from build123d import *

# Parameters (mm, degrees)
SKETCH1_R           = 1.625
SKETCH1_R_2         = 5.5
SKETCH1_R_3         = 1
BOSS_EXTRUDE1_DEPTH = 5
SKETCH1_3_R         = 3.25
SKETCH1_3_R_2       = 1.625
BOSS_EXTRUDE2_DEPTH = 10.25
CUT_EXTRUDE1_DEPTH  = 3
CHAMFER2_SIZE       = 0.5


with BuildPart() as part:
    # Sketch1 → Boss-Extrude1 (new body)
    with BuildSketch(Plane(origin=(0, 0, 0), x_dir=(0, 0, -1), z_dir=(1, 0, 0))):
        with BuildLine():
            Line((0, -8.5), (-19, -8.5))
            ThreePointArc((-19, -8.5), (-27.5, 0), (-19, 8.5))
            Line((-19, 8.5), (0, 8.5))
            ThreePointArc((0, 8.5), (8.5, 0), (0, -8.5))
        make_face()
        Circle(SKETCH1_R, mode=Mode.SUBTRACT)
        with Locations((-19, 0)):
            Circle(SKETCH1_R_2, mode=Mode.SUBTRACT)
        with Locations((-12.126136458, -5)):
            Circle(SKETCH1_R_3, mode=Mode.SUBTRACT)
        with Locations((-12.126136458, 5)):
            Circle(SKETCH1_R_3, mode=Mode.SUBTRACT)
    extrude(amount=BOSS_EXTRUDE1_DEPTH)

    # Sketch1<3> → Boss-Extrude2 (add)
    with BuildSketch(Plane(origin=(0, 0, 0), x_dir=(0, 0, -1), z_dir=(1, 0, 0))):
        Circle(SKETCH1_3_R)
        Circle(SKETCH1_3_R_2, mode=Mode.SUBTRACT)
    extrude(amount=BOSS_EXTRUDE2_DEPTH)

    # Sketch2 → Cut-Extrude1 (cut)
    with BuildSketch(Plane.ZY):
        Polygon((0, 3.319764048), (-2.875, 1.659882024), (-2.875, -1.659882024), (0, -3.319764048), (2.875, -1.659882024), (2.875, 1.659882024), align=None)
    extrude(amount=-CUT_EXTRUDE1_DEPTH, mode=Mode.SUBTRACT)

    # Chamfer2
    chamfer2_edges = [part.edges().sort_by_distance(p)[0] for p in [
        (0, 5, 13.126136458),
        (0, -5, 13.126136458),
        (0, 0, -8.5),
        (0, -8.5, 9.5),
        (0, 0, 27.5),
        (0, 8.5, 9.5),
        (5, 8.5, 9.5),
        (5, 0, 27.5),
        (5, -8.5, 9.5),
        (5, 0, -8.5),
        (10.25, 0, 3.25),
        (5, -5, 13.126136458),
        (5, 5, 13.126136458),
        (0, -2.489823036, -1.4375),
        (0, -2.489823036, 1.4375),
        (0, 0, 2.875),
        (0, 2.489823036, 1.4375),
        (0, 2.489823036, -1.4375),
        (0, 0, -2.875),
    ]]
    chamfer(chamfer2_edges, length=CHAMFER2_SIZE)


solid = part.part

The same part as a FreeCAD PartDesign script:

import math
import FreeCAD as App
import Part
import Sketcher
Q = App.Units.Quantity


def edges_at(feature, points):
    """Names of the edges that pass closest to the given points."""
    edges = feature.Shape.Edges
    near = lambda p: min(range(len(edges)), key=lambda i: edges[i].distToShape(Part.Vertex(*p))[0])
    return sorted({f"Edge{near(p) + 1}" for p in points})

doc = App.newDocument("Part")
body = doc.addObject("PartDesign::Body", "Body")

# Sketch on YZ plane
sketch1 = body.newObject("Sketcher::SketchObject", "Sketch")
sketch1.AttachmentSupport = (doc.getObject("YZ_Plane"), [""])
sketch1.MapMode = "FlatFace"
sketch1.addGeometry(Part.LineSegment(App.Vector(-8.5, 19, 0), App.Vector(-8.5, 0, 0)), False)
sketch1.addGeometry(Part.ArcOfCircle(Part.Circle(App.Vector(0, 0, 0), App.Vector(0, 0, 1), 8.5), math.radians(180), math.radians(360)), False)
sketch1.addGeometry(Part.LineSegment(App.Vector(8.5, 0, 0), App.Vector(8.5, 19, 0)), False)
sketch1.addGeometry(Part.ArcOfCircle(Part.Circle(App.Vector(0, 19, 0), App.Vector(0, 0, 1), 8.5), math.radians(0), math.radians(180)), False)
sketch1.addGeometry(Part.Circle(App.Vector(-5, 12.1, 0), App.Vector(0, 0, 1), 1), False)
sketch1.addGeometry(Part.Circle(App.Vector(0, 0, 0), App.Vector(0, 0, 1), 1.6), False)
sketch1.addGeometry(Part.Circle(App.Vector(0, 19, 0), App.Vector(0, 0, 1), 5.5), False)
sketch1.addGeometry(Part.Circle(App.Vector(5, 12.1, 0), App.Vector(0, 0, 1), 1), False)
sketch1.addConstraint(Sketcher.Constraint("Tangent", 0, 2, 1, 1))
sketch1.addConstraint(Sketcher.Constraint("Tangent", 1, 2, 2, 1))
sketch1.addConstraint(Sketcher.Constraint("Tangent", 2, 2, 3, 1))
sketch1.addConstraint(Sketcher.Constraint("Tangent", 3, 2, 0, 1))
sketch1.addConstraint(Sketcher.Constraint("Vertical", 0))
sketch1.addConstraint(Sketcher.Constraint("Vertical", 2))
sketch1.addConstraint(Sketcher.Constraint("Coincident", 1, 3, -1, 1))
sketch1.addConstraint(Sketcher.Constraint("Coincident", 5, 3, -1, 1))
sketch1.addConstraint(Sketcher.Constraint("Coincident", 6, 3, 3, 3))
sketch1.addConstraint(Sketcher.Constraint("Equal", 4, 7))
sketch1.addConstraint(Sketcher.Constraint("Symmetric", 4, 3, 7, 3, -2))
sketch1.addConstraint(Sketcher.Constraint("Diameter", 4, 2.0))
sketch1.addConstraint(Sketcher.Constraint("Diameter", 6, 11.0))
sketch1.addConstraint(Sketcher.Constraint("Radius", 1, 8.5))
sketch1.addConstraint(Sketcher.Constraint("Diameter", 5, 3.25))
sketch1.addConstraint(Sketcher.Constraint("DistanceY", 0, 2, 0, 1, 19.0))
sketch1.addConstraint(Sketcher.Constraint("DistanceX", 4, 3, -1, 1, 5.0))
sketch1.addConstraint(Sketcher.Constraint("DistanceY", -1, 1, 4, 3, 12.126136))
pad1 = body.newObject("PartDesign::Pad", "Pad")
pad1.Profile = sketch1
pad1.Length = 5

# Sketch on YZ plane
sketch2 = body.newObject("Sketcher::SketchObject", "Sketch001")
sketch2.AttachmentSupport = (doc.getObject("YZ_Plane"), [""])
sketch2.MapMode = "FlatFace"
sketch2.addGeometry(Part.Circle(App.Vector(0, 0, 0), App.Vector(0, 0, 1), 3.2), False)
sketch2.addGeometry(Part.Circle(App.Vector(0, 0, 0), App.Vector(0, 0, 1), 1.6), False)
sketch2.addConstraint(Sketcher.Constraint("Coincident", 0, 3, -1, 1))
sketch2.addConstraint(Sketcher.Constraint("Coincident", 1, 3, -1, 1))
sketch2.addConstraint(Sketcher.Constraint("Diameter", 0, 6.5))
sketch2.addConstraint(Sketcher.Constraint("Diameter", 1, 3.25))
pad2 = body.newObject("PartDesign::Pad", "Pad001")
pad2.Profile = sketch2
pad2.Length = 10.25

# Sketch on YZ plane
sketch3 = body.newObject("Sketcher::SketchObject", "Sketch002")
sketch3.AttachmentSupport = (doc.getObject("YZ_Plane"), [""])
sketch3.MapMode = "FlatFace"
sketch3.addGeometry(Part.LineSegment(App.Vector(3.3, 0, 0), App.Vector(1.7, -2.9, 0)), False)
sketch3.addGeometry(Part.LineSegment(App.Vector(1.7, -2.9, 0), App.Vector(-1.7, -2.9, 0)), False)
sketch3.addGeometry(Part.LineSegment(App.Vector(-1.7, -2.9, 0), App.Vector(-3.3, 0, 0)), False)
sketch3.addGeometry(Part.LineSegment(App.Vector(-3.3, 0, 0), App.Vector(-1.7, 2.9, 0)), False)
sketch3.addGeometry(Part.LineSegment(App.Vector(-1.7, 2.9, 0), App.Vector(1.7, 2.9, 0)), False)
sketch3.addGeometry(Part.LineSegment(App.Vector(1.7, 2.9, 0), App.Vector(3.3, 0, 0)), False)
sketch3.addConstraint(Sketcher.Constraint("Coincident", 0, 2, 1, 1))
sketch3.addConstraint(Sketcher.Constraint("Coincident", 1, 2, 2, 1))
sketch3.addConstraint(Sketcher.Constraint("Coincident", 2, 2, 3, 1))
sketch3.addConstraint(Sketcher.Constraint("Coincident", 3, 2, 4, 1))
sketch3.addConstraint(Sketcher.Constraint("Coincident", 4, 2, 5, 1))
sketch3.addConstraint(Sketcher.Constraint("Coincident", 5, 2, 0, 1))
sketch3.addConstraint(Sketcher.Constraint("Horizontal", 1))
sketch3.addConstraint(Sketcher.Constraint("Horizontal", 4))
sketch3.addConstraint(Sketcher.Constraint("Symmetric", 0, 2, 3, 2, -1, 1))
sketch3.addConstraint(Sketcher.Constraint("Symmetric", 2, 2, 5, 2, -1, 1))
sketch3.addConstraint(Sketcher.Constraint("PointOnObject", 2, 2, -1))
sketch3.addConstraint(Sketcher.Constraint("Parallel", 2, 5))
sketch3.addConstraint(Sketcher.Constraint("Vertical", 1, 2, 3, 2))
sketch3.addConstraint(Sketcher.Constraint("Angle", 0, Q("-120 deg")))
sketch3.addConstraint(Sketcher.Constraint("DistanceY", 1, 2, 3, 2, 5.75))
sketch3.addConstraint(Sketcher.Constraint("DistanceX", 1, 2, 1, 1, 3.319764))
pocket1 = body.newObject("PartDesign::Pocket", "Pocket")
pocket1.Profile = sketch3
pocket1.Length = 3
pocket1.Reversed = True
doc.recompute()

chamfer = body.newObject("PartDesign::Chamfer", "Chamfer")
chamfer.Base = (pocket1, edges_at(pocket1, [
    (0, 5, 13.126),
    (0, -5, 13.126),
    (0, 0, -8.5),
    (0, -8.5, 9.5),
    (0, 0, 27.5),
    (0, 8.5, 9.5),
    (5, 8.5, 9.5),
    (5, 0, 27.5),
    (5, -8.5, 9.5),
    (5, 0, -8.5),
    (10.25, 0, 3.25),
    (5, -5, 13.126),
    (5, 5, 13.126),
    (0, -2.49, -1.438),
    (0, -2.49, 1.438),
    (0, 0, 2.875),
    (0, 2.49, 1.438),
    (0, 2.49, -1.438),
    (0, 0, -2.875),
]))
chamfer.Size = 0.5

doc.recompute()
